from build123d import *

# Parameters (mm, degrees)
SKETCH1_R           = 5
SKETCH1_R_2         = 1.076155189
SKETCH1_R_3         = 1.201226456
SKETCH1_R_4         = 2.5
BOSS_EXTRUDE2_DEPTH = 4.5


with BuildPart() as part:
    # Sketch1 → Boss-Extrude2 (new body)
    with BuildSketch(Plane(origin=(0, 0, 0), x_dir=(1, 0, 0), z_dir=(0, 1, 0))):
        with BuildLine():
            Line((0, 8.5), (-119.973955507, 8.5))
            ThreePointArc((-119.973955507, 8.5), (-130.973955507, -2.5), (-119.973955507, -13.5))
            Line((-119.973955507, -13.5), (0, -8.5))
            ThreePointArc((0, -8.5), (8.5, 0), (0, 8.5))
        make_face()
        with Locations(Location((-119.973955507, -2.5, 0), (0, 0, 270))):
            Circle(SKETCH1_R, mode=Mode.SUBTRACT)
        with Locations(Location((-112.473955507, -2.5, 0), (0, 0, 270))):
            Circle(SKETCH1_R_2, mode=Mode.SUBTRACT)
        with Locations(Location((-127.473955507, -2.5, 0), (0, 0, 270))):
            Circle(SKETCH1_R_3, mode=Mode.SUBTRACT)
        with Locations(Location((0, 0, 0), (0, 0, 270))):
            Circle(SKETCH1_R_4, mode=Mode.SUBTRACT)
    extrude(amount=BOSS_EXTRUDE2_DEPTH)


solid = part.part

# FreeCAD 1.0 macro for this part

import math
import FreeCAD as App
import Part
import Sketcher

V = App.Vector
Q = App.Units.Quantity

doc = App.newDocument("Part")
params = doc.addObject("Spreadsheet::Sheet", "Params")
for row, (alias, value) in enumerate([
    ("sketch1_diameter", "10 mm"),
    ("sketch1_diameter2", "5 mm"),
    ("sketch1_radius", "11 mm"),
    ("sketch1_radius2", "8.5 mm"),
    ("pad1_length", "4.5 mm"),
], start=1):
    params.set(f"A{row}", alias)
    params.set(f"B{row}", "=" + value)
    params.setAlias(f"B{row}", alias)

body = doc.addObject("PartDesign::Body", "Body")

sketch1 = body.newObject("Sketcher::SketchObject", "Sketch")
sketch1.AttachmentSupport = (doc.getObject("XZ_Plane"), [""])
sketch1.MapMode = "FlatFace"
sketch1.addGeometry([
    Part.LineSegment(V(0, -8.5, 0), V(-120, -8.5, 0)),
    Part.ArcOfCircle(Part.Circle(V(-120, 2.5, 0), V(0, 0, 1), 11), math.radians(90), math.radians(270)),
    Part.LineSegment(V(-120, 13.5, 0), V(0, 8.5, 0)),
    Part.ArcOfCircle(Part.Circle(V(0, 0, 0), V(0, 0, 1), 8.5), math.radians(-90), math.radians(90)),
    Part.Circle(V(-127.5, 2.5, 0), V(0, 0, 1), 1.2),
    Part.Circle(V(-120, 2.5, 0), V(0, 0, 1), 5),
    Part.Circle(V(-112.5, 2.5, 0), V(0, 0, 1), 1.1),
    Part.Circle(V(0, 0, 0), V(0, 0, 1), 2.5),
], False)
sketch1.addConstraint([
    Sketcher.Constraint("Tangent", 0, 2, 1, 2),
    Sketcher.Constraint("Coincident", 1, 1, 2, 1),
    Sketcher.Constraint("Coincident", 2, 2, 3, 2),
    Sketcher.Constraint("Tangent", 3, 1, 0, 1),
    Sketcher.Constraint("Horizontal", 0),
    Sketcher.Constraint("Coincident", 3, 3, -1, 1),
    Sketcher.Constraint("Coincident", 7, 3, -1, 1),
    Sketcher.Constraint("Coincident", 5, 3, 1, 3),
    Sketcher.Constraint("PointOnObject", 2, 2, -2),
    Sketcher.Constraint("Horizontal", 1, 3, 4, 3),
    Sketcher.Constraint("Horizontal", 5, 3, 6, 3),
    Sketcher.Constraint("Vertical", 0, 2, 1, 1),
    Sketcher.Constraint("Diameter", 5, Q("10 mm")),
    Sketcher.Constraint("Diameter", 7, Q("5 mm")),
    Sketcher.Constraint("Radius", 1, Q("11 mm")),
    Sketcher.Constraint("Radius", 3, Q("8.5 mm")),
    Sketcher.Constraint("DistanceX", 4, 3, 6, 3, Q("15 mm")),
    Sketcher.Constraint("DistanceX", 4, 3, 1, 3, Q("7.5 mm")),
    Sketcher.Constraint("Diameter", 6, Q("2.15231 mm")),
    Sketcher.Constraint("Diameter", 4, Q("2.402453 mm")),
    Sketcher.Constraint("Distance", 2, Q("120.0781 mm")),
])
sketch1.setExpression("Constraints[12]", "Params.sketch1_diameter")
sketch1.setExpression("Constraints[13]", "Params.sketch1_diameter2")
sketch1.setExpression("Constraints[14]", "Params.sketch1_radius")
sketch1.setExpression("Constraints[15]", "Params.sketch1_radius2")
pad1 = body.newObject("PartDesign::Pad", "Pad")
pad1.Profile = sketch1
pad1.setExpression("Length", "Params.pad1_length")
pad1.Reversed = True

doc.recompute()
